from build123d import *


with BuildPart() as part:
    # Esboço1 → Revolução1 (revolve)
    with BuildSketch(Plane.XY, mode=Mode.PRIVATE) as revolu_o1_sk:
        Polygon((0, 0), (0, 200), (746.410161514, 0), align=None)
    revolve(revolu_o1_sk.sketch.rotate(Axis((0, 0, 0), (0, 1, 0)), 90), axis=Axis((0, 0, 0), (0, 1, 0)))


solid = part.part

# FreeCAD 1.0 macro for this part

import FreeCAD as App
import Part
import Sketcher

V = App.Vector
Q = App.Units.Quantity

doc = App.newDocument("Part")
params = doc.addObject("Spreadsheet::Sheet", "Params")
for row, (alias, value) in enumerate([
    ("sketch1_height", "200 mm"),
    ("revolution_angle", "360 deg"),
], start=1):
    params.set(f"A{row}", alias)
    params.set(f"B{row}", "=" + value)
    params.setAlias(f"B{row}", alias)

body = doc.addObject("PartDesign::Body", "Body")

# Sketch on XY plane
sketch1 = doc.addObject("Sketcher::SketchObject", "Sketch")
body.addObject(sketch1)
sketch1.AttachmentSupport = (doc.XY_Plane, [""])
sketch1.MapMode = "FlatFace"
sketch1.addGeometry([
    Part.LineSegment(V(0, 200, 0), V(0, 0, 0)),
    Part.LineSegment(V(0, 0, 0), V(746, 0, 0)),
    Part.LineSegment(V(746, 0, 0), V(0, 200, 0)),
], False)
sketch1.addConstraint([
    Sketcher.Constraint("Coincident", 0, 2, 1, 1),
    Sketcher.Constraint("Coincident", 1, 2, 2, 1),
    Sketcher.Constraint("Coincident", 2, 2, 0, 1),
    Sketcher.Constraint("Vertical", 0),
    Sketcher.Constraint("Horizontal", 1),
    Sketcher.Constraint("Coincident", 0, 2, -1, 1),
    Sketcher.Constraint("DistanceY", 0, 2, 0, 1, Q("200 mm")),
    Sketcher.Constraint("Angle", 2, Q("165 deg")),
])
sketch1.setExpression("Constraints[6]", "Params.sketch1_height")
revolution = doc.addObject("PartDesign::Revolution", "Revolution")
body.addObject(revolution)
revolution.Profile = sketch1
revolution.ReferenceAxis = (sketch1, ["V_Axis"])
revolution.setExpression("Angle", "Params.revolution_angle")

doc.recompute()
